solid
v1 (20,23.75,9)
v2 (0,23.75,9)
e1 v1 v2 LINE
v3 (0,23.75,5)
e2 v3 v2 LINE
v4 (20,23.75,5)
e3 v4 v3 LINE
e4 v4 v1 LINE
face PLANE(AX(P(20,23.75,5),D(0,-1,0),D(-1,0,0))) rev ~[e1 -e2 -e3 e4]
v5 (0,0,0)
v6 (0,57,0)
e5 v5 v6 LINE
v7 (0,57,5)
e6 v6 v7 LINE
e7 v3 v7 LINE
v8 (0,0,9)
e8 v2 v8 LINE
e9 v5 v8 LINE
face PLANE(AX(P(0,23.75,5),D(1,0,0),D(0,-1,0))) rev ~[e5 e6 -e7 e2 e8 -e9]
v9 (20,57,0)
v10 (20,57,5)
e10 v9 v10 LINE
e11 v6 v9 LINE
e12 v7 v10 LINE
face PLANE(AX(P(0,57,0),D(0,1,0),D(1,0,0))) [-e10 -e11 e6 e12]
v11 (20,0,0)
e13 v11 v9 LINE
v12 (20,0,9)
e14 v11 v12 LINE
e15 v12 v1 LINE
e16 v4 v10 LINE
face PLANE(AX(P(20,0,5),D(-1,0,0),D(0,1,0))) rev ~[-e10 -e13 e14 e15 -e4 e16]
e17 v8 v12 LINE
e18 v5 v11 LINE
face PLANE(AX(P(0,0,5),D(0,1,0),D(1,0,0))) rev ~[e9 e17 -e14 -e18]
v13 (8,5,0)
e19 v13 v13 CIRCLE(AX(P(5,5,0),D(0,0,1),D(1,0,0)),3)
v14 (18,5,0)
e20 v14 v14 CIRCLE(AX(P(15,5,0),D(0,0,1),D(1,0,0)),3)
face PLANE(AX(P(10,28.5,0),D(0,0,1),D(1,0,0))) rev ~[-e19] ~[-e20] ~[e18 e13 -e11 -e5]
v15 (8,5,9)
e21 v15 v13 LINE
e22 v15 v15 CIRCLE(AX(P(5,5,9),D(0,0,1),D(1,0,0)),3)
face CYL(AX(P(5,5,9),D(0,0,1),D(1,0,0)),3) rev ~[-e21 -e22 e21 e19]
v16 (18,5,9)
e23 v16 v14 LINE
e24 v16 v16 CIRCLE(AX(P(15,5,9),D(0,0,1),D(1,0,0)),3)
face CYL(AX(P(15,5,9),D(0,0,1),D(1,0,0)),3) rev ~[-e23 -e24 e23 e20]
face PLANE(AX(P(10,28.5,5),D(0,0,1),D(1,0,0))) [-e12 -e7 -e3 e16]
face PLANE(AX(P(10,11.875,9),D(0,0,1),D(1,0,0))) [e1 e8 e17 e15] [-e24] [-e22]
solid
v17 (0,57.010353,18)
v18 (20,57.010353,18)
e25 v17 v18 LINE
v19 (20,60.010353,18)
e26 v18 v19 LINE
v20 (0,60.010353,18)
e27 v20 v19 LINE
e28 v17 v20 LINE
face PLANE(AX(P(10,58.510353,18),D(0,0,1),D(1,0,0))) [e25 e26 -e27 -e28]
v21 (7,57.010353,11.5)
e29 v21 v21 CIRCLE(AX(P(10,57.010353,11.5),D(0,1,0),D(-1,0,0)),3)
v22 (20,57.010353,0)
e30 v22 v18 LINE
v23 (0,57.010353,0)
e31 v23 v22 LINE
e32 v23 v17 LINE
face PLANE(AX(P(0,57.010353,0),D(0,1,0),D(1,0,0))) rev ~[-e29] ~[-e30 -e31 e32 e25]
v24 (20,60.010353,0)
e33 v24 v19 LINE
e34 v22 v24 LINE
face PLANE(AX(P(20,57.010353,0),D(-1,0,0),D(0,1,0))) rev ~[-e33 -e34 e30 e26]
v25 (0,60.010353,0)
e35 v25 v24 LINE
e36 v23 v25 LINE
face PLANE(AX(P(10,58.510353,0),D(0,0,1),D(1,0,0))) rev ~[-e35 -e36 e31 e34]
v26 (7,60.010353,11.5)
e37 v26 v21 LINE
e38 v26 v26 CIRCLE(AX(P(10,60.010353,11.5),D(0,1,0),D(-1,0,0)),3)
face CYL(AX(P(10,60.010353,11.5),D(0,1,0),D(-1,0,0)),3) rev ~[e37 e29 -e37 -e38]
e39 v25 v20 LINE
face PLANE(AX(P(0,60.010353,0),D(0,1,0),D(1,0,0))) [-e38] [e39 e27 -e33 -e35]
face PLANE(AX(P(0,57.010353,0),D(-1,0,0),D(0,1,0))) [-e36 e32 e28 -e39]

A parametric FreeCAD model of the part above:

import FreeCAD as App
import Part
import Sketcher
from FreeCAD import Vector
Q = App.Units.Quantity

doc = App.newDocument("Part")
params = doc.addObject("Spreadsheet::Sheet", "Params")
for row, (alias, value) in enumerate([
    ("sketch1_width", "20 mm"),
    ("sketch1_height", "57 mm"),
    ("pad1_length", "5 mm"),
    ("sketch2_width", "20 mm"),
    ("sketch2_height", "23.75 mm"),
    ("pad2_length", "4 mm"),
    ("sketch3_diameter", "6 mm"),
    ("pocket1_length", "25 mm"),
    ("sketch4_width", "20 mm"),
    ("sketch4_height", "3 mm"),
    ("pad3_length", "18 mm"),
    ("sketch5_diameter", "6 mm"),
    ("pocket2_length", "10 mm"),
], start=1):
    params.set(f"A{row}", alias)
    params.set(f"B{row}", "=" + value)
    params.setAlias(f"B{row}", alias)

body = doc.addObject("PartDesign::Body", "Body")

# Sketch on XY plane
sketch1 = doc.addObject("Sketcher::SketchObject", "Sketch")
body.addObject(sketch1)
sketch1.AttachmentSupport = (doc.XY_Plane, [""])
sketch1.MapMode = "FlatFace"
sketch1.addGeometry([
    Part.LineSegment(Vector(0, 57, 0), Vector(0, 0, 0)),
    Part.LineSegment(Vector(0, 0, 0), Vector(20, 0, 0)),
    Part.LineSegment(Vector(20, 0, 0), Vector(20, 57, 0)),
    Part.LineSegment(Vector(20, 57, 0), Vector(0, 57, 0)),
], False)
sketch1.addConstraint([
    Sketcher.Constraint("Coincident", 0, 2, 1, 1),
    Sketcher.Constraint("Coincident", 1, 2, 2, 1),
    Sketcher.Constraint("Coincident", 2, 2, 3, 1),
    Sketcher.Constraint("Coincident", 3, 2, 0, 1),
    Sketcher.Constraint("Vertical", 0),
    Sketcher.Constraint("Horizontal", 1),
    Sketcher.Constraint("Vertical", 2),
    Sketcher.Constraint("Horizontal", 3),
    Sketcher.Constraint("Coincident", 0, 2, -1, 1),
    Sketcher.Constraint("DistanceX", 1, 1, 1, 2, Q("20 mm")),
    Sketcher.Constraint("DistanceY", 0, 2, 0, 1, Q("57 mm")),
])
sketch1.setExpression("Constraints[9]", "Params.sketch1_width")
sketch1.setExpression("Constraints[10]", "Params.sketch1_height")
pad1 = doc.addObject("PartDesign::Pad", "Pad")
body.addObject(pad1)
pad1.Profile = sketch1
pad1.setExpression("Length", "Params.pad1_length")

# Sketch on XY plane
sketch2 = doc.addObject("Sketcher::SketchObject", "Sketch001")
body.addObject(sketch2)
sketch2.AttachmentSupport = (doc.XY_Plane, [""])
sketch2.MapMode = "FlatFace"
sketch2.AttachmentOffset = App.Placement(Vector(0, 0, 5), App.Rotation())
sketch2.addGeometry([
    Part.LineSegment(Vector(0, 24, 0), Vector(0, 0, 0)),
    Part.LineSegment(Vector(0, 0, 0), Vector(20, 0, 0)),
    Part.LineSegment(Vector(20, 0, 0), Vector(20, 24, 0)),
    Part.LineSegment(Vector(20, 24, 0), Vector(0, 24, 0)),
], False)
sketch2.addConstraint([
    Sketcher.Constraint("Coincident", 0, 2, 1, 1),
    Sketcher.Constraint("Coincident", 1, 2, 2, 1),
    Sketcher.Constraint("Coincident", 2, 2, 3, 1),
    Sketcher.Constraint("Coincident", 3, 2, 0, 1),
    Sketcher.Constraint("Vertical", 0),
    Sketcher.Constraint("Horizontal", 1),
    Sketcher.Constraint("Vertical", 2),
    Sketcher.Constraint("Horizontal", 3),
    Sketcher.Constraint("Coincident", 0, 2, -1, 1),
    Sketcher.Constraint("DistanceX", 1, 1, 1, 2, Q("20 mm")),
    Sketcher.Constraint("DistanceY", 0, 2, 0, 1, Q("23.75 mm")),
])
sketch2.setExpression("Constraints[9]", "Params.sketch2_width")
sketch2.setExpression("Constraints[10]", "Params.sketch2_height")
pad2 = doc.addObject("PartDesign::Pad", "Pad001")
body.addObject(pad2)
pad2.Profile = sketch2
pad2.setExpression("Length", "Params.pad2_length")

# Sketch on XY plane
sketch3 = doc.addObject("Sketcher::SketchObject", "Sketch002")
body.addObject(sketch3)
sketch3.AttachmentSupport = (doc.XY_Plane, [""])
sketch3.MapMode = "FlatFace"
sketch3.AttachmentOffset = App.Placement(Vector(0, 0, 9), App.Rotation())
sketch3.addGeometry([
    Part.Circle(Vector(5, 5, 0), Vector(0, 0, 1), 3),
    Part.Circle(Vector(15, 5, 0), Vector(0, 0, 1), 3),
], False)
sketch3.addConstraint([
    Sketcher.Constraint("Equal", 0, 1),
    Sketcher.Constraint("Horizontal", 0, 3, 1, 3),
    Sketcher.Constraint("Diameter", 0, Q("6 mm")),
    Sketcher.Constraint("DistanceX", -1, 1, 0, 3, Q("5 mm")),
    Sketcher.Constraint("DistanceY", -1, 1, 0, 3, Q("5 mm")),
    Sketcher.Constraint("DistanceX", -1, 1, 1, 3, Q("15 mm")),
])
sketch3.setExpression("Constraints[2]", "Params.sketch3_diameter")
pocket1 = doc.addObject("PartDesign::Pocket", "Pocket")
body.addObject(pocket1)
pocket1.Profile = sketch3
pocket1.setExpression("Length", "Params.pocket1_length")
body2 = doc.addObject("PartDesign::Body", "Body001")

# Sketch on XY plane
sketch4 = doc.addObject("Sketcher::SketchObject", "Sketch003")
body2.addObject(sketch4)
sketch4.AttachmentSupport = (doc.getObject("XY_Plane001"), [""])
sketch4.MapMode = "FlatFace"
sketch4.addGeometry([
    Part.LineSegment(Vector(0, 60, 0), Vector(0, 57, 0)),
    Part.LineSegment(Vector(0, 57, 0), Vector(20, 57, 0)),
    Part.LineSegment(Vector(20, 57, 0), Vector(20, 60, 0)),
    Part.LineSegment(Vector(20, 60, 0), Vector(0, 60, 0)),
], False)
sketch4.addConstraint([
    Sketcher.Constraint("Coincident", 0, 2, 1, 1),
    Sketcher.Constraint("Coincident", 1, 2, 2, 1),
    Sketcher.Constraint("Coincident", 2, 2, 3, 1),
    Sketcher.Constraint("Coincident", 3, 2, 0, 1),
    Sketcher.Constraint("Vertical", 0),
    Sketcher.Constraint("Horizontal", 1),
    Sketcher.Constraint("Vertical", 2),
    Sketcher.Constraint("Horizontal", 3),
    Sketcher.Constraint("PointOnObject", 0, 2, -2),
    Sketcher.Constraint("DistanceX", 1, 1, 1, 2, Q("20 mm")),
    Sketcher.Constraint("DistanceY", 0, 2, 0, 1, Q("3 mm")),
    Sketcher.Constraint("DistanceY", -1, 1, 0, 2, Q("57.010353 mm")),
])
sketch4.setExpression("Constraints[9]", "Params.sketch4_width")
sketch4.setExpression("Constraints[10]", "Params.sketch4_height")
pad3 = doc.addObject("PartDesign::Pad", "Pad002")
body2.addObject(pad3)
pad3.Profile = sketch4
pad3.setExpression("Length", "Params.pad3_length")

# Sketch on XZ plane
sketch5 = doc.addObject("Sketcher::SketchObject", "Sketch004")
body2.addObject(sketch5)
sketch5.AttachmentSupport = (doc.getObject("XZ_Plane001"), [""])
sketch5.MapMode = "FlatFace"
sketch5.AttachmentOffset = App.Placement(Vector(0, 0, -60.010353), App.Rotation())
sketch5.addGeometry(Part.Circle(Vector(10, 11.5, 0), Vector(0, 0, 1), 3), False)
sketch5.addConstraint([
    Sketcher.Constraint("Diameter", 0, Q("6 mm")),
    Sketcher.Constraint("DistanceX", -1, 1, 0, 3, Q("10 mm")),
    Sketcher.Constraint("DistanceY", -1, 1, 0, 3, Q("11.5 mm")),
])
sketch5.setExpression("Constraints[0]", "Params.sketch5_diameter")
pocket2 = doc.addObject("PartDesign::Pocket", "Pocket001")
body2.addObject(pocket2)
pocket2.Profile = sketch5
pocket2.setExpression("Length", "Params.pocket2_length")
pocket2.Reversed = True

doc.recompute()
